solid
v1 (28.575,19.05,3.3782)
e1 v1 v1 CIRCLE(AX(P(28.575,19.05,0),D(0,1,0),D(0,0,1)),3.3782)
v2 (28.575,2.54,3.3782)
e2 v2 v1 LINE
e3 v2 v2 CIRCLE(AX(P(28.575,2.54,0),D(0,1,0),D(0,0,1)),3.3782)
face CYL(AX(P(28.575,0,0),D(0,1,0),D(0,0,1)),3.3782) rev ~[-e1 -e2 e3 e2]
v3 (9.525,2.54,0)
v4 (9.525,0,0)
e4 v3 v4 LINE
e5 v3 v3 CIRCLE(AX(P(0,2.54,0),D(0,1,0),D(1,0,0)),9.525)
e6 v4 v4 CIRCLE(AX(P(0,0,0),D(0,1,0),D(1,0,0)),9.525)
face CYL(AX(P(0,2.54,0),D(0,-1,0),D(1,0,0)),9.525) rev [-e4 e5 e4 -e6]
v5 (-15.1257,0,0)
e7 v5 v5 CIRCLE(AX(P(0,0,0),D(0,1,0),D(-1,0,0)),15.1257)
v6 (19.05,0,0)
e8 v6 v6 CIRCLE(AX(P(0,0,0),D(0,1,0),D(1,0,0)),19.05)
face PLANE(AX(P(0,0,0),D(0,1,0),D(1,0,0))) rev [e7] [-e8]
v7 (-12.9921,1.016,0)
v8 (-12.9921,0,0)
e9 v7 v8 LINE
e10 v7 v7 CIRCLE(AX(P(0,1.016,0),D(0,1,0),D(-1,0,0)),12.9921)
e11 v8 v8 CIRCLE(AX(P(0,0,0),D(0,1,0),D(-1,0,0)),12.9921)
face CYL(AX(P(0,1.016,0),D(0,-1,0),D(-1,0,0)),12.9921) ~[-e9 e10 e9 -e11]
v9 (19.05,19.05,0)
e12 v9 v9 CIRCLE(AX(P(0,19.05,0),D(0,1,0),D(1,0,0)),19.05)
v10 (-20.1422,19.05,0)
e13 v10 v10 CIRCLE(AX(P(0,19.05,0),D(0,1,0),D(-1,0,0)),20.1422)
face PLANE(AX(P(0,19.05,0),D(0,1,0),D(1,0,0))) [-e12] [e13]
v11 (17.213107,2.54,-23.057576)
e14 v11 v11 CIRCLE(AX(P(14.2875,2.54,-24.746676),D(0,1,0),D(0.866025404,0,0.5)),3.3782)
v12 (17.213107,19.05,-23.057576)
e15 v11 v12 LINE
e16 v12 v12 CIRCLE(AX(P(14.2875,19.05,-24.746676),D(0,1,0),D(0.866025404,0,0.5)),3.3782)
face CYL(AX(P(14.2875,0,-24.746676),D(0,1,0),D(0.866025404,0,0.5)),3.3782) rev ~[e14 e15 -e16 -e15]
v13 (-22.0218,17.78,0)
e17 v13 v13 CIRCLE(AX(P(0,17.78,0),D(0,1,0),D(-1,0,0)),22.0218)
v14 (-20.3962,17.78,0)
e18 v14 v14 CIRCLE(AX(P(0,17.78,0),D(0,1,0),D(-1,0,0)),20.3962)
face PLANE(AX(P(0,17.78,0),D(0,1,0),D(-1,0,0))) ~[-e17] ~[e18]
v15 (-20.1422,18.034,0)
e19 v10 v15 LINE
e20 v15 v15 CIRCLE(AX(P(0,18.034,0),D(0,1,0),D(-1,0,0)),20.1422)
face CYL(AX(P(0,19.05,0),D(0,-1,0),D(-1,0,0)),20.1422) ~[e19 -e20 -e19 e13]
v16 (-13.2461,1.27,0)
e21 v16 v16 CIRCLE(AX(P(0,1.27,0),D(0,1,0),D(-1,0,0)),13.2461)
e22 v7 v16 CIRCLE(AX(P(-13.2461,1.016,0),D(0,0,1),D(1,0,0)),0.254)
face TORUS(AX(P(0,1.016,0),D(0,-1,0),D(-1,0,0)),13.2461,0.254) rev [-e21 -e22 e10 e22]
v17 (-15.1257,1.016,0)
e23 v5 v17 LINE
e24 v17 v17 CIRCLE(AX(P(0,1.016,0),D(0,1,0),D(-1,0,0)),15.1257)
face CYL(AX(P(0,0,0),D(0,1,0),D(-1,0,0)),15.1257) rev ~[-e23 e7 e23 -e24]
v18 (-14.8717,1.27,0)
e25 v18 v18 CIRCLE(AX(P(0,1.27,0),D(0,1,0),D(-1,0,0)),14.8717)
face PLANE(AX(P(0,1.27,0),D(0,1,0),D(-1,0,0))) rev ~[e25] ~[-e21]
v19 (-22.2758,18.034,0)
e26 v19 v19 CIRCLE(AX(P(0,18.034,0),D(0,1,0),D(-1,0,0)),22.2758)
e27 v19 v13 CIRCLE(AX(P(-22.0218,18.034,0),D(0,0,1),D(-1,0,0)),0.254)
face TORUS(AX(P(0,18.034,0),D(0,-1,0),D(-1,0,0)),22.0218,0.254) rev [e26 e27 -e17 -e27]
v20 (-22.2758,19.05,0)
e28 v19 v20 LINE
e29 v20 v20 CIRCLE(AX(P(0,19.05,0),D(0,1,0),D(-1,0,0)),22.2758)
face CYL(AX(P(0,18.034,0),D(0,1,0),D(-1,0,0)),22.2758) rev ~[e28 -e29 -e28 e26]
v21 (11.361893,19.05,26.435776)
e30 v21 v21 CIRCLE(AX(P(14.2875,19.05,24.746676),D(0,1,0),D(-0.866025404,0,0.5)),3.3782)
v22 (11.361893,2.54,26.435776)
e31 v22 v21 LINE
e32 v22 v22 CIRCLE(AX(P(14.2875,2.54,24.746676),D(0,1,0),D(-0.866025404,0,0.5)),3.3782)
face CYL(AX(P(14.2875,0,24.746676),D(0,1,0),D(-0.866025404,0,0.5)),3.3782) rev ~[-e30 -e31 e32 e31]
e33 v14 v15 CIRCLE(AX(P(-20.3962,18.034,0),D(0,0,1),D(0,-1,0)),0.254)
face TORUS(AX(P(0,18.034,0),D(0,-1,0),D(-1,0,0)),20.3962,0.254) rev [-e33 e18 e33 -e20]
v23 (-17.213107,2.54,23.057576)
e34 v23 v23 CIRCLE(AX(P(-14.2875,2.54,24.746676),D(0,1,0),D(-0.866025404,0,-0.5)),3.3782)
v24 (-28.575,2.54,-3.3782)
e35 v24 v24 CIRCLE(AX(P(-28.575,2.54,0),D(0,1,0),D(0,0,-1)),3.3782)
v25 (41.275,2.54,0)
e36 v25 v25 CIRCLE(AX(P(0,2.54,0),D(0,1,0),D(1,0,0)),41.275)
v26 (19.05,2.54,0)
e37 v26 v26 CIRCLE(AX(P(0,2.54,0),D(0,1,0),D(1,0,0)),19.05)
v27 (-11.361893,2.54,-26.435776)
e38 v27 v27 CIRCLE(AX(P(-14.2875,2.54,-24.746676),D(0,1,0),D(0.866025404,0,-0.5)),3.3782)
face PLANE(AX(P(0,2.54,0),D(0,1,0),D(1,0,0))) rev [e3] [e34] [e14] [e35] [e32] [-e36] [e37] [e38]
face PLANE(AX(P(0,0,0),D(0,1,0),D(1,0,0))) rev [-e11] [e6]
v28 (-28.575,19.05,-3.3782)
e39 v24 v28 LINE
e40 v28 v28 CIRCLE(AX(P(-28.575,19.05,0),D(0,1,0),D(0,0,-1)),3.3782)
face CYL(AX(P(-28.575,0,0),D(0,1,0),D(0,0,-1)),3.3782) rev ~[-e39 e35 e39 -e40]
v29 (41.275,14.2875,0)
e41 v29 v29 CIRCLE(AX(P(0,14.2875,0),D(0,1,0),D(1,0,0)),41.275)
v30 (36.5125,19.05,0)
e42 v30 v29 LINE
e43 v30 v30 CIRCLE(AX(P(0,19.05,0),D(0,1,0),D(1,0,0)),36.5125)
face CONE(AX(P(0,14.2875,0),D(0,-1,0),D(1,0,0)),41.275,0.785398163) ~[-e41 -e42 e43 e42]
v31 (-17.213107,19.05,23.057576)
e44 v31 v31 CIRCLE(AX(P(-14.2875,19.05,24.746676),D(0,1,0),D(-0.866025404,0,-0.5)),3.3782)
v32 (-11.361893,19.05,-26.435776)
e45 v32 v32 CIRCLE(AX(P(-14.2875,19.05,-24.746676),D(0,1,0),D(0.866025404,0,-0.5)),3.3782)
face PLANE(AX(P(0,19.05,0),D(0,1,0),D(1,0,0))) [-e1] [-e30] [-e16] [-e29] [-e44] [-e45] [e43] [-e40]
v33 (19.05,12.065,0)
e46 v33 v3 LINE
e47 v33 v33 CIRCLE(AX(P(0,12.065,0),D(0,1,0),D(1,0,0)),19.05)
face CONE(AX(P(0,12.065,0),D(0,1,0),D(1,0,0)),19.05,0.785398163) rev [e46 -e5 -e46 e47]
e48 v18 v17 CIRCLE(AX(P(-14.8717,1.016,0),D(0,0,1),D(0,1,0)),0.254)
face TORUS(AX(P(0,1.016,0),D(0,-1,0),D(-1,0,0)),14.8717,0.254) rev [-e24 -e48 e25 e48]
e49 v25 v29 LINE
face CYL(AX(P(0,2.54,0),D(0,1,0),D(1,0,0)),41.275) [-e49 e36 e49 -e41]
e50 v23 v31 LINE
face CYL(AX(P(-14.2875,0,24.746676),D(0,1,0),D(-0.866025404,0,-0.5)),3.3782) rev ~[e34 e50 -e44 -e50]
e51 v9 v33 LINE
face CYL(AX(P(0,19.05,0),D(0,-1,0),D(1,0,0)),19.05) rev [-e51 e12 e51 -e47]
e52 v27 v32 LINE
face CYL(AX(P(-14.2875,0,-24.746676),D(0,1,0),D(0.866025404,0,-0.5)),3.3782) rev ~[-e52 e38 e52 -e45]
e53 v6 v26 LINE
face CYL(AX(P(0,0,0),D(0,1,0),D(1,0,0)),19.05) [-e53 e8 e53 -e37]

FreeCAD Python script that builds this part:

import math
import FreeCAD as App
import Part
import Sketcher

V = App.Vector
Q = App.Units.Quantity


def edges_at(feature, points):
    """Names of the edges that pass closest to the given points."""
    edges = feature.Shape.Edges
    near = lambda p: min(range(len(edges)), key=lambda i: edges[i].distToShape(Part.Vertex(*p))[0])
    return sorted({f"Edge{near(p) + 1}" for p in points})


def add_polygon(sketch, points):
    """Adds a closed chain of lines whose ends are joined by coincident constraints."""
    first, n = sketch.GeometryCount, len(points)
    for a, b in zip(points, points[1:] + points[:1]):
        sketch.addGeometry(Part.LineSegment(App.Vector(*a, 0), App.Vector(*b, 0)), False)
    for i in range(n):
        sketch.addConstraint(Sketcher.Constraint("Coincident", first + i, 2, first + (i + 1) % n, 1))

doc = App.newDocument("Part")
body = doc.addObject("PartDesign::Body", "Body")

# Sketch on XY plane
sketch1 = body.newObject("Sketcher::SketchObject", "Sketch")
sketch1.AttachmentSupport = (doc.getObject("XY_Plane"), [""])
sketch1.MapMode = "FlatFace"
add_polygon(sketch1, [(9.5, 2.5), (9.5, 0), (19.1, 0), (19.1, 2.5), (41.3, 2.5), (41.3, 19.1), (19.1, 19.1), (19.1, 12.1)])  # lines 0-7
sketch1.addConstraint([
    Sketcher.Constraint("Vertical", 0),
    Sketcher.Constraint("Horizontal", 1),
    Sketcher.Constraint("Vertical", 2),
    Sketcher.Constraint("Horizontal", 3),
    Sketcher.Constraint("Vertical", 4),
    Sketcher.Constraint("Horizontal", 5),
    Sketcher.Constraint("Vertical", 6),
    Sketcher.Constraint("PointOnObject", 0, 2, -1),
    Sketcher.Constraint("Horizontal", 3, 2, 7, 2),
    Sketcher.Constraint("Vertical", 2, 2, 5, 2),
    Sketcher.Constraint("DistanceY", 0, 2, 0, 1, Q("0.1 in")),
    Sketcher.Constraint("DistanceX", 1, 1, 1, 2, Q("0.375 in")),
    Sketcher.Constraint("DistanceX", -1, 1, 1, 2, Q("0.75 in")),
    Sketcher.Constraint("DistanceY", -1, 1, 4, 2, Q("0.75 in")),
    Sketcher.Constraint("DistanceX", -1, 1, 3, 2, Q("1.625 in")),
    Sketcher.Constraint("Angle", 7, Q("-135 deg")),
])
revolution = body.newObject("PartDesign::Revolution", "Revolution")
revolution.Profile = sketch1
revolution.ReferenceAxis = (sketch1, ["V_Axis"])
revolution.Angle = 360

# Sketch on XZ plane
sketch2 = body.newObject("Sketcher::SketchObject", "Sketch001")
sketch2.AttachmentSupport = (doc.getObject("XZ_Plane"), [""])
sketch2.MapMode = "FlatFace"
sketch2.addGeometry(Part.Circle(V(-28.6, 0, 0), V(0, 0, 1), 3.4), False)
sketch2.addConstraint([
    Sketcher.Constraint("PointOnObject", 0, 3, -1),
    Sketcher.Constraint("Diameter", 0, Q("0.266 in")),
    Sketcher.Constraint("DistanceX", 0, 3, -1, 1, Q("1.125 in")),
])
doc.recompute()
hole = body.newObject("PartDesign::Hole", "Hole")
hole.Profile = sketch2
hole.ThreadType = "None"
hole.Diameter = Q("0.266 in")
hole.DepthType = "ThroughAll"
doc.recompute()

polarpattern = body.newObject("PartDesign::PolarPattern", "PolarPattern")
polarpattern.Originals = [hole]
polarpattern.Axis = (doc.getObject("Y_Axis"), [""])
polarpattern.Angle = 360
polarpattern.Occurrences = 6
body.Tip = polarpattern
doc.recompute()

chamfer = body.newObject("PartDesign::Chamfer", "Chamfer")
chamfer.Base = (polarpattern, edges_at(polarpattern, [(-41.275, 19.05, 0)]))
chamfer.Size = Q("0.1875 in")

# Sketch on XY plane
sketch3 = body.newObject("Sketcher::SketchObject", "Sketch002")
sketch3.AttachmentSupport = (doc.getObject("XY_Plane"), [""])
sketch3.MapMode = "FlatFace"
sketch3.addGeometry([
    Part.LineSegment(V(-20.14, 19.05, 0), V(-22.28, 19.05, 0)),  # 0
    Part.LineSegment(V(-22.28, 19.05, 0), V(-22.28, 18.03, 0)),  # 1
    Part.ArcOfCircle(Part.Circle(V(-22.02, 18.03, 0), V(0, 0, 1), 0.25), math.radians(180), math.radians(270)),  # 2
    Part.LineSegment(V(-22.02, 17.78, 0), V(-20.4, 17.78, 0)),  # 3
    Part.ArcOfCircle(Part.Circle(V(-20.4, 18.03, 0), V(0, 0, 1), 0.25), math.radians(-90), math.radians(0)),  # 4
    Part.LineSegment(V(-20.14, 18.03, 0), V(-20.14, 19.05, 0)),  # 5
], False)
sketch3.addConstraint([
    Sketcher.Constraint("Coincident", 0, 2, 1, 1),
    Sketcher.Constraint("Tangent", 1, 2, 2, 1),
    Sketcher.Constraint("Tangent", 2, 2, 3, 1),
    Sketcher.Constraint("Tangent", 3, 2, 4, 1),
    Sketcher.Constraint("Tangent", 4, 2, 5, 1),
    Sketcher.Constraint("Coincident", 5, 2, 0, 1),
    Sketcher.Constraint("Horizontal", 0),
    Sketcher.Constraint("Vertical", 1),
    Sketcher.Constraint("Horizontal", 3),
    Sketcher.Constraint("Vertical", 5),
    Sketcher.Constraint("Equal", 2, 4),
    Sketcher.Constraint("Radius", 2, Q("0.01 in")),
    Sketcher.Constraint("DistanceX", 0, 2, 0, 1, Q("0.084 in")),
    Sketcher.Constraint("DistanceY", 2, 2, 0, 2, Q("0.05 in")),
    Sketcher.Constraint("DistanceX", 0, 2, -1, 1, Q("0.877 in")),
    Sketcher.Constraint("DistanceY", -1, 1, 2, 2, Q("0.7 in")),
])
groove = body.newObject("PartDesign::Groove", "Groove")
groove.Profile = sketch3
groove.ReferenceAxis = (sketch3, ["V_Axis"])
groove.Angle = 360

# Sketch on XY plane
sketch4 = body.newObject("Sketcher::SketchObject", "Sketch003")
sketch4.AttachmentSupport = (doc.getObject("XY_Plane"), [""])
sketch4.MapMode = "FlatFace"
sketch4.addGeometry([
    Part.LineSegment(V(-13.25, 1.27, 0), V(-14.87, 1.27, 0)),  # 0
    Part.ArcOfCircle(Part.Circle(V(-14.87, 1.02, 0), V(0, 0, 1), 0.25), math.radians(90), math.radians(180)),  # 1
    Part.LineSegment(V(-15.13, 1.02, 0), V(-15.13, 0, 0)),  # 2
    Part.LineSegment(V(-15.13, 0, 0), V(-12.99, 0, 0)),  # 3
    Part.LineSegment(V(-12.99, 0, 0), V(-12.99, 1.02, 0)),  # 4
    Part.ArcOfCircle(Part.Circle(V(-13.25, 1.02, 0), V(0, 0, 1), 0.25), math.radians(0), math.radians(90)),  # 5
], False)
sketch4.addConstraint([
    Sketcher.Constraint("Tangent", 0, 2, 1, 1),
    Sketcher.Constraint("Tangent", 1, 2, 2, 1),
    Sketcher.Constraint("Coincident", 2, 2, 3, 1),
    Sketcher.Constraint("Coincident", 3, 2, 4, 1),
    Sketcher.Constraint("Tangent", 4, 2, 5, 1),
    Sketcher.Constraint("Tangent", 5, 2, 0, 1),
    Sketcher.Constraint("Horizontal", 0),
    Sketcher.Constraint("Vertical", 2),
    Sketcher.Constraint("Horizontal", 3),
    Sketcher.Constraint("Vertical", 4),
    Sketcher.Constraint("Equal", 1, 5),
    Sketcher.Constraint("PointOnObject", 2, 2, -1),
    Sketcher.Constraint("Radius", 1, Q("0.01 in")),
    Sketcher.Constraint("DistanceX", 3, 1, 3, 2, Q("0.084 in")),
    Sketcher.Constraint("DistanceY", -1, 1, 0, 2, Q("0.05 in")),
    Sketcher.Constraint("DistanceX", 1, 2, -1, 1, Q("0.5955 in")),
])
groove2 = body.newObject("PartDesign::Groove", "Groove001")
groove2.Profile = sketch4
groove2.ReferenceAxis = (sketch4, ["V_Axis"])
groove2.Angle = 360

doc.recompute()
